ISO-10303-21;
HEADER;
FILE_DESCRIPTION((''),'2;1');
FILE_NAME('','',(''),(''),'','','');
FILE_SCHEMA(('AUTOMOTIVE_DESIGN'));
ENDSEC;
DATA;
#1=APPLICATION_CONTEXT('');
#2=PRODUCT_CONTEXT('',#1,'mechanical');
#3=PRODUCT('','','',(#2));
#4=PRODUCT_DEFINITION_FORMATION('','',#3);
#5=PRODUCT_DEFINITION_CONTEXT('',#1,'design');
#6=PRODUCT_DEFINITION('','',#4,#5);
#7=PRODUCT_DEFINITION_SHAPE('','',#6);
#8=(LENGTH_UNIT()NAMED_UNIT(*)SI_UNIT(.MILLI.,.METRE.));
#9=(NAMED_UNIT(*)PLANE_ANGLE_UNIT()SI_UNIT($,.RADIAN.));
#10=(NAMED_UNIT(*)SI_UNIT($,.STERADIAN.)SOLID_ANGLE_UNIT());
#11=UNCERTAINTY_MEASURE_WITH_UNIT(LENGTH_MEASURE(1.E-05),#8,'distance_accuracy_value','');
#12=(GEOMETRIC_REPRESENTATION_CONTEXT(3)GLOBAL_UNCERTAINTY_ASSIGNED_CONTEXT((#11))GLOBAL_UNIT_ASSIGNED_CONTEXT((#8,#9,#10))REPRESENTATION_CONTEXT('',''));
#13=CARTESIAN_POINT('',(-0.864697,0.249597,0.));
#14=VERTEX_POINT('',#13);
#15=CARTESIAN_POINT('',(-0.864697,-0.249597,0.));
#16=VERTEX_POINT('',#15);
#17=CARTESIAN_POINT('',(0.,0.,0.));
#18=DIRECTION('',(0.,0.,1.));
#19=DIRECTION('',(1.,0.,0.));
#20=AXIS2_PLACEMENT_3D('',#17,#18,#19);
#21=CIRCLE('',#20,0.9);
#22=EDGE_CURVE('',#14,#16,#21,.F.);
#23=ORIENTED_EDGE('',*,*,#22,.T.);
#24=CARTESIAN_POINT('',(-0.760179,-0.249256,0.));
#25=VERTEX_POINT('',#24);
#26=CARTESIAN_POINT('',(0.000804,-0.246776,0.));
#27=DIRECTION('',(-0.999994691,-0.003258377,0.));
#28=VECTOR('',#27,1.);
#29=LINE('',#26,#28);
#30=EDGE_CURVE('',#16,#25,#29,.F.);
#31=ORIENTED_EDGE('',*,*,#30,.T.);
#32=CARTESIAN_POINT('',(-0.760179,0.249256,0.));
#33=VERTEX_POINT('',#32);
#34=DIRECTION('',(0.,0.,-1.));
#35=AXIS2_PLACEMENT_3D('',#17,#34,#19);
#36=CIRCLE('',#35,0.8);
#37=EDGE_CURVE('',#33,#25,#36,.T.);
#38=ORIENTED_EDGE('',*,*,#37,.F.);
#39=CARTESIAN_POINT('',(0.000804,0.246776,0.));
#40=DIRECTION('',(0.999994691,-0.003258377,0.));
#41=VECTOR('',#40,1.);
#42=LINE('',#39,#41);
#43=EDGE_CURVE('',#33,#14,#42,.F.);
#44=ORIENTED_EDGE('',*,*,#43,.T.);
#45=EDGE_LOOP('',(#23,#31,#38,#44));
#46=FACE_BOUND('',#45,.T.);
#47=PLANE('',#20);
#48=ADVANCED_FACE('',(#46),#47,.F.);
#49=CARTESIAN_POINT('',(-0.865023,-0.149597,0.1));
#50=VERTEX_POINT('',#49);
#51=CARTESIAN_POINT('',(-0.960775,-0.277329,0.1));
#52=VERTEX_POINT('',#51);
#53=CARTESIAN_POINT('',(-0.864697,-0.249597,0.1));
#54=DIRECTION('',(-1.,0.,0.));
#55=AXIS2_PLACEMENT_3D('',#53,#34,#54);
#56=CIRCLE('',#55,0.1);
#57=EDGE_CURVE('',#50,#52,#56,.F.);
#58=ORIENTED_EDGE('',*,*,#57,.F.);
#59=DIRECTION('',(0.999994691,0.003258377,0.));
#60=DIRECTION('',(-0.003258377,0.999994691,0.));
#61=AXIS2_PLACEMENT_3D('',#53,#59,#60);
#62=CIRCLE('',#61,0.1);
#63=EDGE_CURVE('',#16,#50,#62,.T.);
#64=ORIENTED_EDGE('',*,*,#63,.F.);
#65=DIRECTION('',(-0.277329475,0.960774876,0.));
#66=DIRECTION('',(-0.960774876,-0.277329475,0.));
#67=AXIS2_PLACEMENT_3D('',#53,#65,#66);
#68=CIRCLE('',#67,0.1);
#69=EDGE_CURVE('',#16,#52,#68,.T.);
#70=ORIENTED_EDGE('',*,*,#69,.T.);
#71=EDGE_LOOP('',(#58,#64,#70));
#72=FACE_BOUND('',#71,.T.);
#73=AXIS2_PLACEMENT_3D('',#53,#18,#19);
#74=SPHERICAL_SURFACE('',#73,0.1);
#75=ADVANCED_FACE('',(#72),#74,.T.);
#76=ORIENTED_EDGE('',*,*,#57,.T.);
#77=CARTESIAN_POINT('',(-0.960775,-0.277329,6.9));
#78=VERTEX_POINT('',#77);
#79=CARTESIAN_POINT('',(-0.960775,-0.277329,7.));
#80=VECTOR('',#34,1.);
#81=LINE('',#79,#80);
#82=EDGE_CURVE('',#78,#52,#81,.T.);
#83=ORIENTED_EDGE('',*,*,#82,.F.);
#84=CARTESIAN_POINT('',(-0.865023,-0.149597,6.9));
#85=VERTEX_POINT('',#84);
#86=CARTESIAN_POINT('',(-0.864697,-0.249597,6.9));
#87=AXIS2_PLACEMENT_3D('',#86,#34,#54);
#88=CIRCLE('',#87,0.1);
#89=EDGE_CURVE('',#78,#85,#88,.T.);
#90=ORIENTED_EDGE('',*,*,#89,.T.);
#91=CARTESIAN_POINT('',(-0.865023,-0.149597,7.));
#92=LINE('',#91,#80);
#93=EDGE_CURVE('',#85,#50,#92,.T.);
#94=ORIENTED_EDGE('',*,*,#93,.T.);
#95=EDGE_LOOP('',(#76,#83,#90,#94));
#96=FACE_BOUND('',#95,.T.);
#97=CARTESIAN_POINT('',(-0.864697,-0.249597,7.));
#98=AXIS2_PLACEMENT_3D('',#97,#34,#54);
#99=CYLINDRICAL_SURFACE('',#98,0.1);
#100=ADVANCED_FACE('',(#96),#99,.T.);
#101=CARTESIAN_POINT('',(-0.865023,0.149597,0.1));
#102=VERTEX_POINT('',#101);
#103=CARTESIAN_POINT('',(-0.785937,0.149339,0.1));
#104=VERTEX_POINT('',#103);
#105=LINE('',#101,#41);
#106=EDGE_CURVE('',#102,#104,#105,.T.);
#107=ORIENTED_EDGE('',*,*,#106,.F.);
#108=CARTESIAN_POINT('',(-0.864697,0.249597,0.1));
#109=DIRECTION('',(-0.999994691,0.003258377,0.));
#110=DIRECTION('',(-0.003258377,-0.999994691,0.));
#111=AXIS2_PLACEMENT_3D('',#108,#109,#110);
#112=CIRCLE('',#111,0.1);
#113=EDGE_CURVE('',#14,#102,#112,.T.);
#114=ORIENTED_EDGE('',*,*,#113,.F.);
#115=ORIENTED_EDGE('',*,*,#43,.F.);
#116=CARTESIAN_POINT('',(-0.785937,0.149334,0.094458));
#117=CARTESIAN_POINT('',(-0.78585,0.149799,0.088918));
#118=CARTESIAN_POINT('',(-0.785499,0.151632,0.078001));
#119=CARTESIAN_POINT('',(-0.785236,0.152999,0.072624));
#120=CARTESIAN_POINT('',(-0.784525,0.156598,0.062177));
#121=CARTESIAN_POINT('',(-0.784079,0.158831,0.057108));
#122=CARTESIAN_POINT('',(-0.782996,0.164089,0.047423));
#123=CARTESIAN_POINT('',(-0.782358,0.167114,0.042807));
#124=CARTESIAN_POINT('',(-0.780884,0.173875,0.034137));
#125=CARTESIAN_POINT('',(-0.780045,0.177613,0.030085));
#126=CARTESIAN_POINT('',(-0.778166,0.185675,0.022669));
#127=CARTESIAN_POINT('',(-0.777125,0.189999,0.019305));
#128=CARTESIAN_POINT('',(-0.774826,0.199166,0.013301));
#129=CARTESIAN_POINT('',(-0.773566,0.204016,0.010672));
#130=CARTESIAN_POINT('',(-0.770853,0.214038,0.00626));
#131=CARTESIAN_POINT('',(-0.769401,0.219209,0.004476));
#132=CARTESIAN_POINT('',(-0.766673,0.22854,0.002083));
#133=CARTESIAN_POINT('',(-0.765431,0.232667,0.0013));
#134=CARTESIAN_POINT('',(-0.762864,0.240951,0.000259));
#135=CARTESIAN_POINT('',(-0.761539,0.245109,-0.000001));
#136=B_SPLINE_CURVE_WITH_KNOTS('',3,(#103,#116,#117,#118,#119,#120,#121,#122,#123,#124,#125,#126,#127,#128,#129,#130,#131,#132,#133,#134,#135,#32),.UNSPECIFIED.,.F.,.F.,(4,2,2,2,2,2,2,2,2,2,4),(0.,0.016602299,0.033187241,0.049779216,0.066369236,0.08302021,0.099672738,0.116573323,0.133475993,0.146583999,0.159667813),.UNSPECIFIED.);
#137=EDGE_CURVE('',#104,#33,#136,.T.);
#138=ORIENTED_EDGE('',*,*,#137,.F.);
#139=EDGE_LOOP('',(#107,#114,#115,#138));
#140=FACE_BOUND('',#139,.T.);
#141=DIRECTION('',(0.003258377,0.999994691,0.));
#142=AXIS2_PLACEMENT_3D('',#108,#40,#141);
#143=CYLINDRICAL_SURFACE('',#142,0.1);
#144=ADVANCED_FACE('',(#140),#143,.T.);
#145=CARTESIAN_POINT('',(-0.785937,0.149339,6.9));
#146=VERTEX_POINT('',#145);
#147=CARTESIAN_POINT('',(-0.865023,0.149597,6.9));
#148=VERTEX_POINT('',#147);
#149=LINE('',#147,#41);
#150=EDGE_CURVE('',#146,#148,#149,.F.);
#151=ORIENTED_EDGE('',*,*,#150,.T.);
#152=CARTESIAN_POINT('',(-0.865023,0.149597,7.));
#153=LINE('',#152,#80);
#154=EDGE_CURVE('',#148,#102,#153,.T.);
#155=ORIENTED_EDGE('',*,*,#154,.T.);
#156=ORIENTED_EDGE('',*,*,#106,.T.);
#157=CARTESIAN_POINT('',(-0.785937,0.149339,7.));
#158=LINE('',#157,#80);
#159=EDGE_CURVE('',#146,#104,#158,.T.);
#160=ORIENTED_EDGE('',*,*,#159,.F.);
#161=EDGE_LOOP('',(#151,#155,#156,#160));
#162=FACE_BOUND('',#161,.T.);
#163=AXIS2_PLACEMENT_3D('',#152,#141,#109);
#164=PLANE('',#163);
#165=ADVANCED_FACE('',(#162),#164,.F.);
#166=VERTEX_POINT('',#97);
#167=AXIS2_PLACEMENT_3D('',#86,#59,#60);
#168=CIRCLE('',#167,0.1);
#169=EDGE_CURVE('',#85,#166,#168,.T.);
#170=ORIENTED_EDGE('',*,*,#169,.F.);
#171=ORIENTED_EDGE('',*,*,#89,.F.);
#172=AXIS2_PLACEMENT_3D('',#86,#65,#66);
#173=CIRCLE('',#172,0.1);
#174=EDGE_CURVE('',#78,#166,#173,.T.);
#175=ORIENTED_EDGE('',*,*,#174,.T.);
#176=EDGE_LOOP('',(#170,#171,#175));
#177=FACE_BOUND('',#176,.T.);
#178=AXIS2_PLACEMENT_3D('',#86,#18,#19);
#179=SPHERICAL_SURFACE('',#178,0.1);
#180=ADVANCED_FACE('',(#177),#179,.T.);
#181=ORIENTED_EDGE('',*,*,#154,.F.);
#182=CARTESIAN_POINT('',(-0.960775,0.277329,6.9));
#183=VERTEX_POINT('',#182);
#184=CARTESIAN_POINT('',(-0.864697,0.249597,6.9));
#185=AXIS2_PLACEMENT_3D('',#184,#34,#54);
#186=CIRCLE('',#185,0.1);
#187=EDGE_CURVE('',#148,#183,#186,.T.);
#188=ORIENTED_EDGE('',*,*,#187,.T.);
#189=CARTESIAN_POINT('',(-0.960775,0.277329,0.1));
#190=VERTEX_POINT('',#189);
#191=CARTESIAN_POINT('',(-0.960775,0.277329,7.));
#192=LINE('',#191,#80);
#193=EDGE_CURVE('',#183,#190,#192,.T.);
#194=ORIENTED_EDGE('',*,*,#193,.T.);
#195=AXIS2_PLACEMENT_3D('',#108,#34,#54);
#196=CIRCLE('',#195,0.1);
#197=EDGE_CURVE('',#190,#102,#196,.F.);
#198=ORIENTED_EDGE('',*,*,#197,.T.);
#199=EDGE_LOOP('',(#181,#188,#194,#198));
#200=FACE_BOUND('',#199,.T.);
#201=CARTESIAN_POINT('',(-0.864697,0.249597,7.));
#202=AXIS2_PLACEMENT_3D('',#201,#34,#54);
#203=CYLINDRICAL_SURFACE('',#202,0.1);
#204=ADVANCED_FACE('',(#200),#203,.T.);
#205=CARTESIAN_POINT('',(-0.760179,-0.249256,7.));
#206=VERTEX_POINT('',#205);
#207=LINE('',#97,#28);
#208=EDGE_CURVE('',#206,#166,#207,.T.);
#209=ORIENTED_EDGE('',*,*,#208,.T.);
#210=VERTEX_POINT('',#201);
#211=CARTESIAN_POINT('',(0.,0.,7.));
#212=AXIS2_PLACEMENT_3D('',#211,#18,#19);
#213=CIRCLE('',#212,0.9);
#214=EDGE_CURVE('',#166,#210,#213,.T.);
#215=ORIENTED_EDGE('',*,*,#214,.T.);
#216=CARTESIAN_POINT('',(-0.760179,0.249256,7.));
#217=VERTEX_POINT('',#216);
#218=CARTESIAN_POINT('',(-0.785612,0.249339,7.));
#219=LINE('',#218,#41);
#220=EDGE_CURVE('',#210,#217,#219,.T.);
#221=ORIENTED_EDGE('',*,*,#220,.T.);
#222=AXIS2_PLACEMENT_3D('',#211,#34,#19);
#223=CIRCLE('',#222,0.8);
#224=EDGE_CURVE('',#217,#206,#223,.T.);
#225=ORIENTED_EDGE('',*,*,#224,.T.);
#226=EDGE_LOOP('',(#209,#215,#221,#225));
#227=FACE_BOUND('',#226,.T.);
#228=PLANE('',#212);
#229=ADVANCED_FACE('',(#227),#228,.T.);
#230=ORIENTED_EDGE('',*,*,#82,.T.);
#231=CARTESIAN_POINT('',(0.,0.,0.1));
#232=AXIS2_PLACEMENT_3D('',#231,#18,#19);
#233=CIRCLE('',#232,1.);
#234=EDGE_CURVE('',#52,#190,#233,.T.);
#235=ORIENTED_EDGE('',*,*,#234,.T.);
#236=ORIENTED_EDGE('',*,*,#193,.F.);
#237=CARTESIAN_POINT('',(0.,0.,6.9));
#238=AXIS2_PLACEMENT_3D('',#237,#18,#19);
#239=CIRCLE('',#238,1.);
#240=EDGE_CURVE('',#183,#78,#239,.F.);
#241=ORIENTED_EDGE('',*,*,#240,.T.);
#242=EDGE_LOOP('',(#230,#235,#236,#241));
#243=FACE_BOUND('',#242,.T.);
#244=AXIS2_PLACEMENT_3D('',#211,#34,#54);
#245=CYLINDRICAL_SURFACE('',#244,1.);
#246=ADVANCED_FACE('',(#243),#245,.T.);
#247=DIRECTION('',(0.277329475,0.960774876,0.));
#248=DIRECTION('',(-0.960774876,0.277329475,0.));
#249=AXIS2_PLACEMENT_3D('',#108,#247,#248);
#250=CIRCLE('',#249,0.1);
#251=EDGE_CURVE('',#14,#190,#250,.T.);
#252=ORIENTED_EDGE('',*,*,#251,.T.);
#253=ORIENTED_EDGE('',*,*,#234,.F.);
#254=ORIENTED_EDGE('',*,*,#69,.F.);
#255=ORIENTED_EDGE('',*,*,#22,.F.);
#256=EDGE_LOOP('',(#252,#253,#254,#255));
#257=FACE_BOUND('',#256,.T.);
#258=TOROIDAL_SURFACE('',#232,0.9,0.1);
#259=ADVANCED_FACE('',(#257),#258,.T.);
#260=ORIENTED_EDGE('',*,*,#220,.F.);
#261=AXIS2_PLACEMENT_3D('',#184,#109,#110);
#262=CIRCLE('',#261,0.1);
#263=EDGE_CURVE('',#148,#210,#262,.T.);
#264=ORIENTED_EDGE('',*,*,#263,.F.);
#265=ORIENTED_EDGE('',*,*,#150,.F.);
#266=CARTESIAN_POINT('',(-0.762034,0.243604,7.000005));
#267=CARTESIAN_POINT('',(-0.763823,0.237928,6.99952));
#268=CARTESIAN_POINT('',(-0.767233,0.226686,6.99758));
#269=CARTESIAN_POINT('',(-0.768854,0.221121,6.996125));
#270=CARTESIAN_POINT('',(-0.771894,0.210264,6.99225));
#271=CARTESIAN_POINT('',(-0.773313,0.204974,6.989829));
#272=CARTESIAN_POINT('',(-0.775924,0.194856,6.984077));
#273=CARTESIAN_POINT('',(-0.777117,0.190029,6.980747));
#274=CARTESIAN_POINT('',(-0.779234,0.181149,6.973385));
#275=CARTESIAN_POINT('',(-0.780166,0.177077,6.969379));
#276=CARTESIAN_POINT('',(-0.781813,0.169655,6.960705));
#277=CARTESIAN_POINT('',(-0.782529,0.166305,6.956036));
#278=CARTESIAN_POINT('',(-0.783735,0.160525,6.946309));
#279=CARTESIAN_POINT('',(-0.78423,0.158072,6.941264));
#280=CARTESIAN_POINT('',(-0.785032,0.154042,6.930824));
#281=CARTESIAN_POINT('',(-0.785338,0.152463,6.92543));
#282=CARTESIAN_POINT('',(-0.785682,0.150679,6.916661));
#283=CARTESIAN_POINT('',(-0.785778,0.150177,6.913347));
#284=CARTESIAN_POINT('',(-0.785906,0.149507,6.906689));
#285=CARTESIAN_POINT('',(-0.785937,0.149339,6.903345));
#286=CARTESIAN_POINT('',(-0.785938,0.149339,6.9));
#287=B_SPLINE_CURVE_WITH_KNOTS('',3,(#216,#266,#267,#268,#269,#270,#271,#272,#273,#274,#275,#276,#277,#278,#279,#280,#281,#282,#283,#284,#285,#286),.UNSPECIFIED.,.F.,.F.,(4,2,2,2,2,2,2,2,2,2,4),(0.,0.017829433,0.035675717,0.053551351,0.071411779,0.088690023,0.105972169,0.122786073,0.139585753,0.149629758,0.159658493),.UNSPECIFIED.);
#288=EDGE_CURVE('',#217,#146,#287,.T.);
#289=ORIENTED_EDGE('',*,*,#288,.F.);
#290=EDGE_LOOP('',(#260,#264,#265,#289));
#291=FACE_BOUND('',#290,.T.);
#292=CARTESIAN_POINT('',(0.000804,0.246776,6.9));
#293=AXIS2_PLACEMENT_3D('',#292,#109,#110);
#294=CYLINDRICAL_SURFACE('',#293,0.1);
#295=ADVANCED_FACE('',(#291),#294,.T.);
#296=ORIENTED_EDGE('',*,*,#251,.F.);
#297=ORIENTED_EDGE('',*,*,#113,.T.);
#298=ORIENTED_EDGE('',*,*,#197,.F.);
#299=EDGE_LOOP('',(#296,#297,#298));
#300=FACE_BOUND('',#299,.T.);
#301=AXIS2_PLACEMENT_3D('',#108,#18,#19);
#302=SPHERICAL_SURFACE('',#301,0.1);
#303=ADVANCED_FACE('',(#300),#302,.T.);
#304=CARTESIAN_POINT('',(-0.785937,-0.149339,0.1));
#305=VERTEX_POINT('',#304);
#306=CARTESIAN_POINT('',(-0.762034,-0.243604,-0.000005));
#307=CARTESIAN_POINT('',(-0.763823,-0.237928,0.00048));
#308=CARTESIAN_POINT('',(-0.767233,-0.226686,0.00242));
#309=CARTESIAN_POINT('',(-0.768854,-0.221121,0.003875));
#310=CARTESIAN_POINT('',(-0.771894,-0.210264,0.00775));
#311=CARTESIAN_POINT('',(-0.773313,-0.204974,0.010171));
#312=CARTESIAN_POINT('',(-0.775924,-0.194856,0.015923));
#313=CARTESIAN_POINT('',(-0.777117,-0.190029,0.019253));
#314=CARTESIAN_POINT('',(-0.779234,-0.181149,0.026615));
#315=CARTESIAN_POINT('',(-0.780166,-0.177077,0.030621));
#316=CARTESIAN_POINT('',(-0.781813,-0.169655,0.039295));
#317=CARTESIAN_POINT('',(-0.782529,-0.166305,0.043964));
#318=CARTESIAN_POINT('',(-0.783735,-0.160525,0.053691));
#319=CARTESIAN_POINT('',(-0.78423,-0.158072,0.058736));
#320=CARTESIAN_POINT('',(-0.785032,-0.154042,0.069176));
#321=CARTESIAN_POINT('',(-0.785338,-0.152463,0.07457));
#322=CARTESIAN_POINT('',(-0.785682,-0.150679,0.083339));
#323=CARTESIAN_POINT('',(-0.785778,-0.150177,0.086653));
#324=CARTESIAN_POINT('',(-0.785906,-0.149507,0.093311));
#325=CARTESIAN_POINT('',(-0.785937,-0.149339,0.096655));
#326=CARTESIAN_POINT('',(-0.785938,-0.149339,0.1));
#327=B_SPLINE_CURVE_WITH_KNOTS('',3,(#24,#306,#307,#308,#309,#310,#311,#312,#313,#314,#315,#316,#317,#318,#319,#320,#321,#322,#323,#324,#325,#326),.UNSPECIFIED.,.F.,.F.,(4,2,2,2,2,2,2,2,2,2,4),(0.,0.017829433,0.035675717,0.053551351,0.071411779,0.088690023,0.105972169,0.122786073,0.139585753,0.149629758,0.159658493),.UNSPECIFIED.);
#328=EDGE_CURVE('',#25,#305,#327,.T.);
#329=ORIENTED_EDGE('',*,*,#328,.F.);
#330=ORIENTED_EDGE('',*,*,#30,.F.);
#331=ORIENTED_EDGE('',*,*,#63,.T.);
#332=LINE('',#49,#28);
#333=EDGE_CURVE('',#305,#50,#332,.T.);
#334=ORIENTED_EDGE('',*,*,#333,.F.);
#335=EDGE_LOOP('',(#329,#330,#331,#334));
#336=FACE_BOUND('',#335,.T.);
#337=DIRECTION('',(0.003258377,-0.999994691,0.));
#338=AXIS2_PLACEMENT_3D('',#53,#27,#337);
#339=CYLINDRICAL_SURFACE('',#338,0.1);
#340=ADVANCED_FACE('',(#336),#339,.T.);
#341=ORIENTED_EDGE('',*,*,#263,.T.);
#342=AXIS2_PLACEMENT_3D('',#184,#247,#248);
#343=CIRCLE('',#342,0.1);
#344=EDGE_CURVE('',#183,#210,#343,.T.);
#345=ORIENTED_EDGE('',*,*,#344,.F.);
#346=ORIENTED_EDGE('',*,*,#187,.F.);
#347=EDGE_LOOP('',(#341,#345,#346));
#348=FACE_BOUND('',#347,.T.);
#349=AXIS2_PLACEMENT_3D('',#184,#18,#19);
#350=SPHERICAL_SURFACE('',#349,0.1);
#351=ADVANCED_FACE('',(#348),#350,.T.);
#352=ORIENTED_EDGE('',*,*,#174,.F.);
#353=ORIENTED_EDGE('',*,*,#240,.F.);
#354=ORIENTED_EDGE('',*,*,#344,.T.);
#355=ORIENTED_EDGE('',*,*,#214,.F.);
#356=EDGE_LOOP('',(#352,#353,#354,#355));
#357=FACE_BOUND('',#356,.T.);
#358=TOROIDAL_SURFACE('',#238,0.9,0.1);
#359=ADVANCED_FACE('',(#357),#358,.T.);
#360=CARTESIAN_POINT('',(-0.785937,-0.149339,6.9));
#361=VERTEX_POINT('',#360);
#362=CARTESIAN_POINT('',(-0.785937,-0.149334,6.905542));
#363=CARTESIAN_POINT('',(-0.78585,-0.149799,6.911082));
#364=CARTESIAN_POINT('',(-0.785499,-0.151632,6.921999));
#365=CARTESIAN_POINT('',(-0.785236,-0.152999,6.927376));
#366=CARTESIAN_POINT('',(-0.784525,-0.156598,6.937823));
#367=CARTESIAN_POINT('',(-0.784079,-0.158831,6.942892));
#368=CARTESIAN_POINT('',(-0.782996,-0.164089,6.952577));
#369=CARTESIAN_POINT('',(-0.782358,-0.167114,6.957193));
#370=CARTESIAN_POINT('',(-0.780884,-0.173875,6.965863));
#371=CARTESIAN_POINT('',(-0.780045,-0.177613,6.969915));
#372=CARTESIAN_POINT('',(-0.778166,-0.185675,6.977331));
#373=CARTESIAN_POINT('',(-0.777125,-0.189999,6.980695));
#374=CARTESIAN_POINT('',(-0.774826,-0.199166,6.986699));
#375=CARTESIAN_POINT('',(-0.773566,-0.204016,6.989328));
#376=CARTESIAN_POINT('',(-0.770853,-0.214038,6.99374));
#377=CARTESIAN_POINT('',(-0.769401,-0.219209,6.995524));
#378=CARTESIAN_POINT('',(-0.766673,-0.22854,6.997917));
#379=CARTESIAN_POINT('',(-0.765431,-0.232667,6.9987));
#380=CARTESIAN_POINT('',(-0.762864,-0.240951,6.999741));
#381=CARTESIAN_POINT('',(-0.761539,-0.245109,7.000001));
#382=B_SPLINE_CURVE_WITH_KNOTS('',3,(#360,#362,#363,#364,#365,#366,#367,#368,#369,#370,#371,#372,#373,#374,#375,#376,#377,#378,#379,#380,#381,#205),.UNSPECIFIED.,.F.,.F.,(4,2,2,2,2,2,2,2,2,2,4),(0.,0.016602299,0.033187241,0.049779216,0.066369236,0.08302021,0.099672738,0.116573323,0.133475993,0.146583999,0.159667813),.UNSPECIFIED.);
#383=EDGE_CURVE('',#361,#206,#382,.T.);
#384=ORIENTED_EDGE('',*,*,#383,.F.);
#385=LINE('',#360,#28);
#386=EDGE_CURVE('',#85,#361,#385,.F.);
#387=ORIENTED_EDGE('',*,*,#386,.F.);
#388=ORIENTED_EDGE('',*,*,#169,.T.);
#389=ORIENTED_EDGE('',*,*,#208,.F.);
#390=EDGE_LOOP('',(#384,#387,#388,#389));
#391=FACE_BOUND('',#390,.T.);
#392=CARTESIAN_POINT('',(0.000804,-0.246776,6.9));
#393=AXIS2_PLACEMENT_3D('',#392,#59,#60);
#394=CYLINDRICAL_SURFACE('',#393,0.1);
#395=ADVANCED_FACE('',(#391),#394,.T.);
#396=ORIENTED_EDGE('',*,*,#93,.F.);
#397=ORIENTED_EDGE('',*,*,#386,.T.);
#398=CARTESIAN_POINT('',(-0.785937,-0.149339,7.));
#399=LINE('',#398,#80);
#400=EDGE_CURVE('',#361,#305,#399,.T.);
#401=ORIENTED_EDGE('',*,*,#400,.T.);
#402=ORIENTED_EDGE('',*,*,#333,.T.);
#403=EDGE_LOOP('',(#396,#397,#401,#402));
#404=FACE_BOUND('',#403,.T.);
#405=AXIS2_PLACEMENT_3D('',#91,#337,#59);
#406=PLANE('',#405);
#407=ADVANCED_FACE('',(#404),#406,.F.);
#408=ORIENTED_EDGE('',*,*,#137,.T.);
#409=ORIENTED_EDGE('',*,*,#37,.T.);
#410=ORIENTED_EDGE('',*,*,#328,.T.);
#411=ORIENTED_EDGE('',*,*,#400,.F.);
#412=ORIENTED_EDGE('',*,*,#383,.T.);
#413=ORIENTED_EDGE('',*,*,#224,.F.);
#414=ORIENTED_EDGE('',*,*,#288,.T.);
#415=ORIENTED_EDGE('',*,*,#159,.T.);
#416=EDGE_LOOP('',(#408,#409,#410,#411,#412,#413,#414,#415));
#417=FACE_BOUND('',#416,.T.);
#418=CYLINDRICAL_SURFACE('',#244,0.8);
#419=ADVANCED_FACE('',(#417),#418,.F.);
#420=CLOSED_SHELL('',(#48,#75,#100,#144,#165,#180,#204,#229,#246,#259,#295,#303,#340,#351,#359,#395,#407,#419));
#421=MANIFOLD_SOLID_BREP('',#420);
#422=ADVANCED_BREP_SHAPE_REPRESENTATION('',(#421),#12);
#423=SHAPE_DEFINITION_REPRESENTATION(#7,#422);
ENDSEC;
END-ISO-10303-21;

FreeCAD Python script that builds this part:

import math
import FreeCAD as App
import Part
import Sketcher
from FreeCAD import Vector
Q = App.Units.Quantity


def edges_at(feature, points):
    """Names of the edges that pass closest to the given points."""
    edges = feature.Shape.Edges
    near = lambda p: min(range(len(edges)), key=lambda i: edges[i].distToShape(Part.Vertex(*p))[0])
    return sorted({f"Edge{near(p) + 1}" for p in points})

doc = App.newDocument("Part")
body = doc.addObject("PartDesign::Body", "Body")

sketch1 = body.newObject("Sketcher::SketchObject", "Sketch")
sketch1.AttachmentSupport = (doc.getObject("XY_Plane"), [""])
sketch1.MapMode = "FlatFace"
sketch1.addGeometry([
    Part.LineSegment(Vector(-0.87, 0.15, 0), Vector(-0.79, 0.15, 0)),
    Part.ArcOfCircle(Part.Circle(Vector(0, 0, 0), Vector(0, 0, 1), 0.8), math.radians(-169), math.radians(169)),
    Part.LineSegment(Vector(-0.79, -0.15, 0), Vector(-0.87, -0.15, 0)),
    Part.ArcOfCircle(Part.Circle(Vector(-0.86, -0.25, 0), Vector(0, 0, 1), 0.1), math.radians(90), math.radians(196)),
    Part.ArcOfCircle(Part.Circle(Vector(0, 0, 0), Vector(0, 0, 1), 1), math.radians(-164), math.radians(164)),
    Part.ArcOfCircle(Part.Circle(Vector(-0.86, 0.25, 0), Vector(0, 0, 1), 0.1), math.radians(164), math.radians(270)),
], False)
sketch1.addConstraint([
    Sketcher.Constraint("Coincident", 0, 2, 1, 2),
    Sketcher.Constraint("Coincident", 1, 1, 2, 1),
    Sketcher.Constraint("Tangent", 2, 2, 3, 1),
    Sketcher.Constraint("Tangent", 3, 2, 4, 1),
    Sketcher.Constraint("Tangent", 4, 2, 5, 1),
    Sketcher.Constraint("Tangent", 5, 2, 0, 1),
    Sketcher.Constraint("Coincident", 1, 3, -1, 1),
    Sketcher.Constraint("Coincident", 4, 3, -1, 1),
    Sketcher.Constraint("Equal", 3, 5),
    Sketcher.Constraint("Symmetric", 2, 2, 5, 2, -1),
    Sketcher.Constraint("Radius", 4, Q("1 mm")),
    Sketcher.Constraint("Radius", 1, Q("0.8 mm")),
    Sketcher.Constraint("Radius", 3, Q("0.1 mm")),
    Sketcher.Constraint("DistanceY", -1, 1, 0, 2, Q("0.149339 mm")),
    Sketcher.Constraint("DistanceY", 3, 2, -1, 1, Q("0.277329 mm")),
])
pad1 = body.newObject("PartDesign::Pad", "Pad")
pad1.Profile = sketch1
pad1.Length = 7
doc.recompute()

fillet = body.newObject("PartDesign::Fillet", "Fillet")
fillet.Base = (pad1, edges_at(pad1, [
    (-0.945, -0.19, 7),
    (1, 0, 7),
    (-0.945, 0.19, 7),
    (-0.825, 0.149, 7),
    (-0.825, 0.149, 0),
    (-0.945, 0.19, 0),
    (1, 0, 0),
    (-0.825, -0.149, 7),
    (-0.945, -0.19, 0),
    (-0.825, -0.149, 0),
]))
fillet.Radius = 0.1

doc.recompute()
